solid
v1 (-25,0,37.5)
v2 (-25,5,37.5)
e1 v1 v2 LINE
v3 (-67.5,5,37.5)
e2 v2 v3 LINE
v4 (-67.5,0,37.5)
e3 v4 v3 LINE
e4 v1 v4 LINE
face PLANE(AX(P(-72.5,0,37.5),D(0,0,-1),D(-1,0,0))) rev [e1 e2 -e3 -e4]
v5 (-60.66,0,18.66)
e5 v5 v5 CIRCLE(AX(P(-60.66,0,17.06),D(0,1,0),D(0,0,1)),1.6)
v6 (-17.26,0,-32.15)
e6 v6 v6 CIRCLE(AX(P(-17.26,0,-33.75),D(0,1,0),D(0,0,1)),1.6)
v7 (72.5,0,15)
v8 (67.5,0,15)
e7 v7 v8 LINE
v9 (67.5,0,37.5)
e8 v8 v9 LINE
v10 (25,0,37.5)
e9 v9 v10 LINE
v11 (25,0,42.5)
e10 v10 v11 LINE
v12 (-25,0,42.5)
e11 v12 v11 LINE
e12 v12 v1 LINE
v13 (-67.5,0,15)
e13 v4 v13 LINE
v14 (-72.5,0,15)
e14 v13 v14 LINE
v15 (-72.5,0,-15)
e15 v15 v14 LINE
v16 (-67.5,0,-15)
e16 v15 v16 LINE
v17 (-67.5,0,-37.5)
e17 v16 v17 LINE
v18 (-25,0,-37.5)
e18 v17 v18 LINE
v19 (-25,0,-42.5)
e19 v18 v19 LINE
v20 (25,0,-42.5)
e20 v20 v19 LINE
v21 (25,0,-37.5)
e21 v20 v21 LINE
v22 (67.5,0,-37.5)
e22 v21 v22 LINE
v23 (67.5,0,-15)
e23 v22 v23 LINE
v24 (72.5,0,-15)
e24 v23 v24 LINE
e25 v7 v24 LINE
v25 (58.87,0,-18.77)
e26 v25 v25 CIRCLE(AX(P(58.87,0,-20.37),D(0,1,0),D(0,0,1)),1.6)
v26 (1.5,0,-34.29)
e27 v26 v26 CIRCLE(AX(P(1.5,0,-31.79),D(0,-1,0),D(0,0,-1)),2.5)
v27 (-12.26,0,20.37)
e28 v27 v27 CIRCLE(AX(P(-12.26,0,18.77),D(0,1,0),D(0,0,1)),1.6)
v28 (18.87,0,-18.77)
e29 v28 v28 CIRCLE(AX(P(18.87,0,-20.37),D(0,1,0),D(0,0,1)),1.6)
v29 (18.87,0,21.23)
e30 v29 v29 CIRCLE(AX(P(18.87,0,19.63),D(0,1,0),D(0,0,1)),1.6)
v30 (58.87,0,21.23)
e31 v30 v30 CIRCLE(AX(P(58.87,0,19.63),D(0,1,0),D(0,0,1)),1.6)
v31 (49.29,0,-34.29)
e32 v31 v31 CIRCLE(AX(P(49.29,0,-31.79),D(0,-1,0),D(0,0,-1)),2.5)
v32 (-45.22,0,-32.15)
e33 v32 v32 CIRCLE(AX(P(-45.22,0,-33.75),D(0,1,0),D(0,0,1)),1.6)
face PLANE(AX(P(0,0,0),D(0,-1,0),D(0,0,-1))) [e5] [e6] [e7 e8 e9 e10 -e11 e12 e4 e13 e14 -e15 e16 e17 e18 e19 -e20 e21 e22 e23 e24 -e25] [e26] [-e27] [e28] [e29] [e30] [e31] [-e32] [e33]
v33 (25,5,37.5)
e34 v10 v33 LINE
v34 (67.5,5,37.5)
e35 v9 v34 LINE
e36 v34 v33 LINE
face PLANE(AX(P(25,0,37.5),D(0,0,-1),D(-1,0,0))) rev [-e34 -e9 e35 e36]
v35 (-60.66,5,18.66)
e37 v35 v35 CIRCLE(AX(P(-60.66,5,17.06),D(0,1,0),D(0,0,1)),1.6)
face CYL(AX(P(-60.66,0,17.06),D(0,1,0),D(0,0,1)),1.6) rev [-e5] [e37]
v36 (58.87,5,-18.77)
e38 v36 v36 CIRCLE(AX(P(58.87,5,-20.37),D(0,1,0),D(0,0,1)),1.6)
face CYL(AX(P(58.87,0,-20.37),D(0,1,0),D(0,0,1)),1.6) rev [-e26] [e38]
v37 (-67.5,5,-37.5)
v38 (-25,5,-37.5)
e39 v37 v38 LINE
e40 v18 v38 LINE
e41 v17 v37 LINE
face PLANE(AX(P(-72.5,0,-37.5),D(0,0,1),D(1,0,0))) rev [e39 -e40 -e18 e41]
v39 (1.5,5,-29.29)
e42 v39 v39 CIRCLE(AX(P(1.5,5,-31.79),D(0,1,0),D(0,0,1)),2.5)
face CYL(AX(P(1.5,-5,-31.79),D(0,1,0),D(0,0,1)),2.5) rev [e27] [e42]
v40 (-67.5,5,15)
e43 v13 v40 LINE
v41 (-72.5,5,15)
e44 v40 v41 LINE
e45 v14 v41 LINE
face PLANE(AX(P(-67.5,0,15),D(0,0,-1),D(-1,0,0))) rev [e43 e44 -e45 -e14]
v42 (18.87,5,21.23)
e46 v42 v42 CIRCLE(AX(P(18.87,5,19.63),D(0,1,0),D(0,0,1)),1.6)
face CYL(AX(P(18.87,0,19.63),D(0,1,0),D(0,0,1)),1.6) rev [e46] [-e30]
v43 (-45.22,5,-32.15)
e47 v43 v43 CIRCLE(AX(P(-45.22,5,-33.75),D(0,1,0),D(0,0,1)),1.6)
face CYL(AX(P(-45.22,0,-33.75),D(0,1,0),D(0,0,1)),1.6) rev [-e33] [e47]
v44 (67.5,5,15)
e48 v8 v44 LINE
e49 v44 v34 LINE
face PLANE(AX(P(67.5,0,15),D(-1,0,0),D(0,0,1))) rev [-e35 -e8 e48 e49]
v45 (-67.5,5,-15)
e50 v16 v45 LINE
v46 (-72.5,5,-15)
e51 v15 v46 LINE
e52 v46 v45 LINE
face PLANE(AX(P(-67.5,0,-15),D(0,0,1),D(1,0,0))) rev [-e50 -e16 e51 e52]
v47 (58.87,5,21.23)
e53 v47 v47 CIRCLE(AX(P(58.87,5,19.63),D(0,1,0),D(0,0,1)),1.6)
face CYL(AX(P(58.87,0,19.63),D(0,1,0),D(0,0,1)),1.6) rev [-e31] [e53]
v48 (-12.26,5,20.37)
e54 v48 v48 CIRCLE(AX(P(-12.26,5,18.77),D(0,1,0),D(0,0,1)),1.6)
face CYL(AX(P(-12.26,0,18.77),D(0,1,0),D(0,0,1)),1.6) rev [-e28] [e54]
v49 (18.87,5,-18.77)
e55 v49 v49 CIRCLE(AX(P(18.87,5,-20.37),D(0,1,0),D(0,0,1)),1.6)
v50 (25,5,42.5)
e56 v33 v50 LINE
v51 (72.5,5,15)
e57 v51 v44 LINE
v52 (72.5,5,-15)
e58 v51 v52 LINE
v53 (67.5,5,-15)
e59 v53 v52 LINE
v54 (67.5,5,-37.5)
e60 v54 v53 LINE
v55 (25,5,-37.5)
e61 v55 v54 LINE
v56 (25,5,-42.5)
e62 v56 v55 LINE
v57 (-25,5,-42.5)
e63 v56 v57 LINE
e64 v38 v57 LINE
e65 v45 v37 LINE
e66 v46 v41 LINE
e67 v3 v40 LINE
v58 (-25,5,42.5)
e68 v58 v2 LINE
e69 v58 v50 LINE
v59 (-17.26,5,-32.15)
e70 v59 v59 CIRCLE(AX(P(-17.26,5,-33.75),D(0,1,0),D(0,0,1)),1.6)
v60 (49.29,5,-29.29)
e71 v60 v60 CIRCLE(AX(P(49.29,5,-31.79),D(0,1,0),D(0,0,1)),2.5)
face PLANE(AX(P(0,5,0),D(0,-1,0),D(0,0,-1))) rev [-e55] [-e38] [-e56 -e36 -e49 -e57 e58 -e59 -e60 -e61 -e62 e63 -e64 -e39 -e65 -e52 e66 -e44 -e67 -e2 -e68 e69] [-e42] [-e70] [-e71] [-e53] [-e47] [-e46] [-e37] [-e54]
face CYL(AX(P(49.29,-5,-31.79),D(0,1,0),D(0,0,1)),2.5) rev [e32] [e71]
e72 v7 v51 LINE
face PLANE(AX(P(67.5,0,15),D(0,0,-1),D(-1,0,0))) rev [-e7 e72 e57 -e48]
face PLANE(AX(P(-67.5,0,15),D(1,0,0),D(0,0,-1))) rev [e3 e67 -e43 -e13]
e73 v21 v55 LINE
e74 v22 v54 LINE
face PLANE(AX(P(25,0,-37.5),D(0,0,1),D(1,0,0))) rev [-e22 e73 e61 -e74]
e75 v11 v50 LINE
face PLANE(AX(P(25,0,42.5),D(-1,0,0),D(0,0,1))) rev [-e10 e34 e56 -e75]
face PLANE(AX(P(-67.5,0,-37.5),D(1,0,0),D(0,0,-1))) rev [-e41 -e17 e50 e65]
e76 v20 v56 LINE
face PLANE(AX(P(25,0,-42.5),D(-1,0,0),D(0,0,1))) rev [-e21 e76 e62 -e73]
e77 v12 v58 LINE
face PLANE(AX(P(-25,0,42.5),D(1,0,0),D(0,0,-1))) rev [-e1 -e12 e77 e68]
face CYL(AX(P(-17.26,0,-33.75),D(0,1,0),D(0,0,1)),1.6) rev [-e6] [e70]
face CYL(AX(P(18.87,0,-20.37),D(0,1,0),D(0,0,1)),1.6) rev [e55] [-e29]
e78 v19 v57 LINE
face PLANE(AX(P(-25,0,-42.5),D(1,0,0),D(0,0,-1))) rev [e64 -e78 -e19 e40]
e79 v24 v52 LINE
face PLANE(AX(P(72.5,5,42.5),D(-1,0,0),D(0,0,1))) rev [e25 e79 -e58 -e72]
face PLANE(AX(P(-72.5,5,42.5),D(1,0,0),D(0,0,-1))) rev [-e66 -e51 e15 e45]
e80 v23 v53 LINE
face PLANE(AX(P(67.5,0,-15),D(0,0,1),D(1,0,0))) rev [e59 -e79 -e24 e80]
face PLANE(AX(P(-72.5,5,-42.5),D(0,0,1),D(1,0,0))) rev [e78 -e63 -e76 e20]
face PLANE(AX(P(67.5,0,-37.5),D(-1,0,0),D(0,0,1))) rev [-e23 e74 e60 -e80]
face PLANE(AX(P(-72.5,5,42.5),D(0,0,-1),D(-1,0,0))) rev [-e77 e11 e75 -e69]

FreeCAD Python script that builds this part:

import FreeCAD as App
import Part
import Sketcher

V = App.Vector

doc = App.newDocument("Part")
body = doc.addObject("PartDesign::Body", "Body")

# Sketch on XZ plane
sketch1 = doc.addObject("Sketcher::SketchObject", "Sketch")
body.addObject(sketch1)
sketch1.AttachmentSupport = (doc.XZ_Plane, [""])
sketch1.MapMode = "FlatFace"
sketch1.addGeometry([
    Part.LineSegment(V(-72, -42, 0), V(-72, 42, 0)),
    Part.LineSegment(V(-72, 42, 0), V(72, 42, 0)),
    Part.LineSegment(V(72, 42, 0), V(72, -42, 0)),
    Part.LineSegment(V(72, -42, 0), V(-72, -42, 0)),
], False)
sketch1.addConstraint([
    Sketcher.Constraint("Coincident", 0, 2, 1, 1),
    Sketcher.Constraint("Coincident", 1, 2, 2, 1),
    Sketcher.Constraint("Coincident", 2, 2, 3, 1),
    Sketcher.Constraint("Coincident", 3, 2, 0, 1),
    Sketcher.Constraint("Vertical", 0),
    Sketcher.Constraint("Horizontal", 1),
    Sketcher.Constraint("Vertical", 2),
    Sketcher.Constraint("Horizontal", 3),
    Sketcher.Constraint("Symmetric", 0, 2, 2, 2, -1, 1),
    Sketcher.Constraint("DistanceX", 1, 1, 1, 2, 145.0),
    Sketcher.Constraint("DistanceY", 0, 1, 0, 2, 85.0),
])
pad1 = doc.addObject("PartDesign::Pad", "Pad")
body.addObject(pad1)
pad1.Profile = sketch1
pad1.Length = 5
pad1.Reversed = True

# Sketch on XZ plane
sketch2 = doc.addObject("Sketcher::SketchObject", "Sketch001")
body.addObject(sketch2)
sketch2.AttachmentSupport = (doc.XZ_Plane, [""])
sketch2.MapMode = "FlatFace"
sketch2.AttachmentOffset = App.Placement(V(0, 0, -5), App.Rotation())
sketch2.addGeometry([
    Part.LineSegment(V(-72, -42, 0), V(-72, -38, 0)),  # 0
    Part.LineSegment(V(-72, -38, 0), V(-25, -38, 0)),  # 1
    Part.LineSegment(V(-25, -38, 0), V(-25, -42, 0)),  # 2
    Part.LineSegment(V(-25, -42, 0), V(-72, -42, 0)),  # 3
    Part.LineSegment(V(25, -42, 0), V(25, -38, 0)),  # 4
    Part.LineSegment(V(25, -38, 0), V(72, -38, 0)),  # 5
    Part.LineSegment(V(72, -38, 0), V(72, -42, 0)),  # 6
    Part.LineSegment(V(72, -42, 0), V(25, -42, 0)),  # 7
    Part.LineSegment(V(25, 38, 0), V(25, 42, 0)),  # 8
    Part.LineSegment(V(25, 42, 0), V(72, 42, 0)),  # 9
    Part.LineSegment(V(72, 42, 0), V(72, 38, 0)),  # 10
    Part.LineSegment(V(72, 38, 0), V(25, 38, 0)),  # 11
    Part.LineSegment(V(-72, 38, 0), V(-72, 42, 0)),  # 12
    Part.LineSegment(V(-72, 42, 0), V(-25, 42, 0)),  # 13
    Part.LineSegment(V(-25, 42, 0), V(-25, 38, 0)),  # 14
    Part.LineSegment(V(-25, 38, 0), V(-72, 38, 0)),  # 15
], False)
sketch2.addConstraint([
    Sketcher.Constraint("Coincident", 0, 2, 1, 1),
    Sketcher.Constraint("Coincident", 1, 2, 2, 1),
    Sketcher.Constraint("Coincident", 2, 2, 3, 1),
    Sketcher.Constraint("Coincident", 3, 2, 0, 1),
    Sketcher.Constraint("Coincident", 4, 2, 5, 1),
    Sketcher.Constraint("Coincident", 5, 2, 6, 1),
    Sketcher.Constraint("Coincident", 6, 2, 7, 1),
    Sketcher.Constraint("Coincident", 7, 2, 4, 1),
    Sketcher.Constraint("Coincident", 8, 2, 9, 1),
    Sketcher.Constraint("Coincident", 9, 2, 10, 1),
    Sketcher.Constraint("Coincident", 10, 2, 11, 1),
    Sketcher.Constraint("Coincident", 11, 2, 8, 1),
    Sketcher.Constraint("Coincident", 12, 2, 13, 1),
    Sketcher.Constraint("Coincident", 13, 2, 14, 1),
    Sketcher.Constraint("Coincident", 14, 2, 15, 1),
    Sketcher.Constraint("Coincident", 15, 2, 12, 1),
    Sketcher.Constraint("Vertical", 0),
    Sketcher.Constraint("Horizontal", 1),
    Sketcher.Constraint("Vertical", 2),
    Sketcher.Constraint("Horizontal", 3),
    Sketcher.Constraint("Vertical", 4),
    Sketcher.Constraint("Horizontal", 5),
    Sketcher.Constraint("Vertical", 6),
    Sketcher.Constraint("Horizontal", 7),
    Sketcher.Constraint("Vertical", 8),
    Sketcher.Constraint("Horizontal", 9),
    Sketcher.Constraint("Vertical", 10),
    Sketcher.Constraint("Horizontal", 11),
    Sketcher.Constraint("Vertical", 12),
    Sketcher.Constraint("Horizontal", 13),
    Sketcher.Constraint("Vertical", 14),
    Sketcher.Constraint("Horizontal", 15),
    Sketcher.Constraint("Symmetric", 2, 2, 8, 2, -1, 1),
    Sketcher.Constraint("Symmetric", 0, 2, 10, 2, -1, 1),
    Sketcher.Constraint("Symmetric", 6, 2, 12, 2, -1, 1),
    Sketcher.Constraint("Symmetric", 4, 2, 14, 2, -1, 1),
    Sketcher.Constraint("Symmetric", 1, 2, 4, 2, -2),
    Sketcher.Constraint("Symmetric", 3, 2, 6, 2, -2),
    Sketcher.Constraint("DistanceY", 0, 1, 0, 2, 5.0),
    Sketcher.Constraint("DistanceX", 1, 1, 1, 2, 47.5),
    Sketcher.Constraint("DistanceX", 1, 2, -1, 1, 25.0),
    Sketcher.Constraint("DistanceY", 4, 2, 8, 2, 80.0),
])
pocket1 = doc.addObject("PartDesign::Pocket", "Pocket")
body.addObject(pocket1)
pocket1.Profile = sketch2
pocket1.Length = 5
pocket1.Reversed = True

# Sketch on XZ plane
sketch3 = doc.addObject("Sketcher::SketchObject", "Sketch002")
body.addObject(sketch3)
sketch3.AttachmentSupport = (doc.XZ_Plane, [""])
sketch3.MapMode = "FlatFace"
sketch3.AttachmentOffset = App.Placement(V(0, 0, -5), App.Rotation())
sketch3.addGeometry([
    Part.LineSegment(V(-72, -38, 0), V(-72, -15, 0)),  # 0
    Part.LineSegment(V(-72, -15, 0), V(-68, -15, 0)),  # 1
    Part.LineSegment(V(-68, -15, 0), V(-68, -38, 0)),  # 2
    Part.LineSegment(V(-68, -38, 0), V(-72, -38, 0)),  # 3
    Part.LineSegment(V(-72, 15, 0), V(-72, 38, 0)),  # 4
    Part.LineSegment(V(-72, 38, 0), V(-68, 38, 0)),  # 5
    Part.LineSegment(V(-68, 38, 0), V(-68, 15, 0)),  # 6
    Part.LineSegment(V(-68, 15, 0), V(-72, 15, 0)),  # 7
    Part.LineSegment(V(68, 15, 0), V(68, 38, 0)),  # 8
    Part.LineSegment(V(68, 38, 0), V(72, 38, 0)),  # 9
    Part.LineSegment(V(72, 38, 0), V(72, 15, 0)),  # 10
    Part.LineSegment(V(72, 15, 0), V(68, 15, 0)),  # 11
    Part.LineSegment(V(68, -38, 0), V(68, -15, 0)),  # 12
    Part.LineSegment(V(68, -15, 0), V(72, -15, 0)),  # 13
    Part.LineSegment(V(72, -15, 0), V(72, -38, 0)),  # 14
    Part.LineSegment(V(72, -38, 0), V(68, -38, 0)),  # 15
], False)
sketch3.addConstraint([
    Sketcher.Constraint("Coincident", 0, 2, 1, 1),
    Sketcher.Constraint("Coincident", 1, 2, 2, 1),
    Sketcher.Constraint("Coincident", 2, 2, 3, 1),
    Sketcher.Constraint("Coincident", 3, 2, 0, 1),
    Sketcher.Constraint("Coincident", 4, 2, 5, 1),
    Sketcher.Constraint("Coincident", 5, 2, 6, 1),
    Sketcher.Constraint("Coincident", 6, 2, 7, 1),
    Sketcher.Constraint("Coincident", 7, 2, 4, 1),
    Sketcher.Constraint("Coincident", 8, 2, 9, 1),
    Sketcher.Constraint("Coincident", 9, 2, 10, 1),
    Sketcher.Constraint("Coincident", 10, 2, 11, 1),
    Sketcher.Constraint("Coincident", 11, 2, 8, 1),
    Sketcher.Constraint("Coincident", 12, 2, 13, 1),
    Sketcher.Constraint("Coincident", 13, 2, 14, 1),
    Sketcher.Constraint("Coincident", 14, 2, 15, 1),
    Sketcher.Constraint("Coincident", 15, 2, 12, 1),
    Sketcher.Constraint("Vertical", 0),
    Sketcher.Constraint("Horizontal", 1),
    Sketcher.Constraint("Vertical", 2),
    Sketcher.Constraint("Horizontal", 3),
    Sketcher.Constraint("Vertical", 4),
    Sketcher.Constraint("Horizontal", 5),
    Sketcher.Constraint("Vertical", 6),
    Sketcher.Constraint("Horizontal", 7),
    Sketcher.Constraint("Vertical", 8),
    Sketcher.Constraint("Horizontal", 9),
    Sketcher.Constraint("Vertical", 10),
    Sketcher.Constraint("Horizontal", 11),
    Sketcher.Constraint("Vertical", 12),
    Sketcher.Constraint("Horizontal", 13),
    Sketcher.Constraint("Vertical", 14),
    Sketcher.Constraint("Horizontal", 15),
    Sketcher.Constraint("Symmetric", 2, 2, 8, 2, -1, 1),
    Sketcher.Constraint("Symmetric", 0, 2, 10, 2, -1, 1),
    Sketcher.Constraint("Symmetric", 6, 2, 12, 2, -1, 1),
    Sketcher.Constraint("Symmetric", 4, 2, 14, 2, -1, 1),
    Sketcher.Constraint("Symmetric", 5, 2, 8, 2, -2),
    Sketcher.Constraint("Symmetric", 7, 2, 10, 2, -2),
    Sketcher.Constraint("DistanceX", 1, 1, 1, 2, 5.0),
    Sketcher.Constraint("DistanceY", 0, 1, 0, 2, 22.5),
    Sketcher.Constraint("DistanceY", 0, 2, -1, 1, 15.0),
    Sketcher.Constraint("DistanceX", 5, 2, 8, 2, 135.0),
])
pocket2 = doc.addObject("PartDesign::Pocket", "Pocket001")
body.addObject(pocket2)
pocket2.Profile = sketch3
pocket2.Length = 5
pocket2.Reversed = True

# Sketch on XZ plane
sketch4 = doc.addObject("Sketcher::SketchObject", "Sketch003")
body.addObject(sketch4)
sketch4.AttachmentSupport = (doc.XZ_Plane, [""])
sketch4.MapMode = "FlatFace"
sketch4.AttachmentOffset = App.Placement(V(0, 0, -5), App.Rotation())
sketch4.addGeometry([
    Part.Circle(V(-12.3, 18.8, 0), V(0, 0, 1), 1.6),
    Part.Circle(V(-60.7, 17.1, 0), V(0, 0, 1), 1.6),
    Part.Circle(V(-45.2, -33.8, 0), V(0, 0, 1), 1.6),
    Part.Circle(V(-17.3, -33.8, 0), V(0, 0, 1), 1.6),
], False)
sketch4.addConstraint([
    Sketcher.Constraint("Equal", 0, 1),
    Sketcher.Constraint("Equal", 1, 2),
    Sketcher.Constraint("Equal", 2, 3),
    Sketcher.Constraint("Horizontal", 2, 3, 3, 3),
    Sketcher.Constraint("Diameter", 0, 3.2),
    Sketcher.Constraint("DistanceX", 3, 3, 0, 3, 5.0),
    Sketcher.Constraint("DistanceX", 1, 3, 0, 3, 48.4),
    Sketcher.Constraint("DistanceX", 0, 3, -1, 1, 12.26),
    Sketcher.Constraint("DistanceY", -1, 1, 0, 3, 18.77),
    Sketcher.Constraint("DistanceY", -1, 1, 1, 3, 17.06),
    Sketcher.Constraint("DistanceX", 2, 3, -1, 1, 45.22),
    Sketcher.Constraint("DistanceY", 2, 3, -1, 1, 33.75),
])
pocket3 = doc.addObject("PartDesign::Pocket", "Pocket002")
body.addObject(pocket3)
pocket3.Profile = sketch4
pocket3.Length = 5
pocket3.Reversed = True

# Sketch on XZ plane
sketch5 = doc.addObject("Sketcher::SketchObject", "Sketch004")
body.addObject(sketch5)
sketch5.AttachmentSupport = (doc.XZ_Plane, [""])
sketch5.MapMode = "FlatFace"
sketch5.AttachmentOffset = App.Placement(V(0, 0, -5), App.Rotation())
sketch5.addGeometry([
    Part.Circle(V(58.9, -20.4, 0), V(0, 0, 1), 1.6),
    Part.Circle(V(18.9, -20.4, 0), V(0, 0, 1), 1.6),
    Part.Circle(V(18.9, 19.6, 0), V(0, 0, 1), 1.6),
    Part.Circle(V(58.9, 19.6, 0), V(0, 0, 1), 1.6),
], False)
sketch5.addConstraint([
    Sketcher.Constraint("Equal", 0, 1),
    Sketcher.Constraint("Equal", 1, 2),
    Sketcher.Constraint("Equal", 2, 3),
    Sketcher.Constraint("Horizontal", 0, 3, 1, 3),
    Sketcher.Constraint("Horizontal", 2, 3, 3, 3),
    Sketcher.Constraint("Vertical", 1, 3, 2, 3),
    Sketcher.Constraint("Vertical", 0, 3, 3, 3),
    Sketcher.Constraint("Diameter", 0, 3.2),
    Sketcher.Constraint("DistanceX", 1, 3, 0, 3, 40.0),
    Sketcher.Constraint("DistanceY", 1, 3, 2, 3, 40.0),
    Sketcher.Constraint("DistanceX", -1, 1, 0, 3, 58.87),
    Sketcher.Constraint("DistanceY", 0, 3, -1, 1, 20.37),
])
pocket4 = doc.addObject("PartDesign::Pocket", "Pocket003")
body.addObject(pocket4)
pocket4.Profile = sketch5
pocket4.Length = 5
pocket4.Reversed = True

# Sketch on XZ plane
sketch6 = doc.addObject("Sketcher::SketchObject", "Sketch005")
body.addObject(sketch6)
sketch6.AttachmentSupport = (doc.XZ_Plane, [""])
sketch6.MapMode = "FlatFace"
sketch6.AttachmentOffset = App.Placement(V(0, 0, -5), App.Rotation())
sketch6.addGeometry([
    Part.Circle(V(49.3, -31.8, 0), V(0, 0, 1), 2.5),
    Part.Circle(V(1.5, -31.8, 0), V(0, 0, 1), 2.5),
], False)
sketch6.addConstraint([
    Sketcher.Constraint("Equal", 0, 1),
    Sketcher.Constraint("Horizontal", 0, 3, 1, 3),
    Sketcher.Constraint("Diameter", 0, 5.0),
    Sketcher.Constraint("DistanceX", -1, 1, 1, 3, 1.5),
    Sketcher.Constraint("DistanceX", -1, 1, 0, 3, 49.29),
    Sketcher.Constraint("DistanceY", 0, 3, -1, 1, 31.79),
])
pocket5 = doc.addObject("PartDesign::Pocket", "Pocket004")
body.addObject(pocket5)
pocket5.Profile = sketch6
pocket5.Length = 10
pocket5.Reversed = True

doc.recompute()
